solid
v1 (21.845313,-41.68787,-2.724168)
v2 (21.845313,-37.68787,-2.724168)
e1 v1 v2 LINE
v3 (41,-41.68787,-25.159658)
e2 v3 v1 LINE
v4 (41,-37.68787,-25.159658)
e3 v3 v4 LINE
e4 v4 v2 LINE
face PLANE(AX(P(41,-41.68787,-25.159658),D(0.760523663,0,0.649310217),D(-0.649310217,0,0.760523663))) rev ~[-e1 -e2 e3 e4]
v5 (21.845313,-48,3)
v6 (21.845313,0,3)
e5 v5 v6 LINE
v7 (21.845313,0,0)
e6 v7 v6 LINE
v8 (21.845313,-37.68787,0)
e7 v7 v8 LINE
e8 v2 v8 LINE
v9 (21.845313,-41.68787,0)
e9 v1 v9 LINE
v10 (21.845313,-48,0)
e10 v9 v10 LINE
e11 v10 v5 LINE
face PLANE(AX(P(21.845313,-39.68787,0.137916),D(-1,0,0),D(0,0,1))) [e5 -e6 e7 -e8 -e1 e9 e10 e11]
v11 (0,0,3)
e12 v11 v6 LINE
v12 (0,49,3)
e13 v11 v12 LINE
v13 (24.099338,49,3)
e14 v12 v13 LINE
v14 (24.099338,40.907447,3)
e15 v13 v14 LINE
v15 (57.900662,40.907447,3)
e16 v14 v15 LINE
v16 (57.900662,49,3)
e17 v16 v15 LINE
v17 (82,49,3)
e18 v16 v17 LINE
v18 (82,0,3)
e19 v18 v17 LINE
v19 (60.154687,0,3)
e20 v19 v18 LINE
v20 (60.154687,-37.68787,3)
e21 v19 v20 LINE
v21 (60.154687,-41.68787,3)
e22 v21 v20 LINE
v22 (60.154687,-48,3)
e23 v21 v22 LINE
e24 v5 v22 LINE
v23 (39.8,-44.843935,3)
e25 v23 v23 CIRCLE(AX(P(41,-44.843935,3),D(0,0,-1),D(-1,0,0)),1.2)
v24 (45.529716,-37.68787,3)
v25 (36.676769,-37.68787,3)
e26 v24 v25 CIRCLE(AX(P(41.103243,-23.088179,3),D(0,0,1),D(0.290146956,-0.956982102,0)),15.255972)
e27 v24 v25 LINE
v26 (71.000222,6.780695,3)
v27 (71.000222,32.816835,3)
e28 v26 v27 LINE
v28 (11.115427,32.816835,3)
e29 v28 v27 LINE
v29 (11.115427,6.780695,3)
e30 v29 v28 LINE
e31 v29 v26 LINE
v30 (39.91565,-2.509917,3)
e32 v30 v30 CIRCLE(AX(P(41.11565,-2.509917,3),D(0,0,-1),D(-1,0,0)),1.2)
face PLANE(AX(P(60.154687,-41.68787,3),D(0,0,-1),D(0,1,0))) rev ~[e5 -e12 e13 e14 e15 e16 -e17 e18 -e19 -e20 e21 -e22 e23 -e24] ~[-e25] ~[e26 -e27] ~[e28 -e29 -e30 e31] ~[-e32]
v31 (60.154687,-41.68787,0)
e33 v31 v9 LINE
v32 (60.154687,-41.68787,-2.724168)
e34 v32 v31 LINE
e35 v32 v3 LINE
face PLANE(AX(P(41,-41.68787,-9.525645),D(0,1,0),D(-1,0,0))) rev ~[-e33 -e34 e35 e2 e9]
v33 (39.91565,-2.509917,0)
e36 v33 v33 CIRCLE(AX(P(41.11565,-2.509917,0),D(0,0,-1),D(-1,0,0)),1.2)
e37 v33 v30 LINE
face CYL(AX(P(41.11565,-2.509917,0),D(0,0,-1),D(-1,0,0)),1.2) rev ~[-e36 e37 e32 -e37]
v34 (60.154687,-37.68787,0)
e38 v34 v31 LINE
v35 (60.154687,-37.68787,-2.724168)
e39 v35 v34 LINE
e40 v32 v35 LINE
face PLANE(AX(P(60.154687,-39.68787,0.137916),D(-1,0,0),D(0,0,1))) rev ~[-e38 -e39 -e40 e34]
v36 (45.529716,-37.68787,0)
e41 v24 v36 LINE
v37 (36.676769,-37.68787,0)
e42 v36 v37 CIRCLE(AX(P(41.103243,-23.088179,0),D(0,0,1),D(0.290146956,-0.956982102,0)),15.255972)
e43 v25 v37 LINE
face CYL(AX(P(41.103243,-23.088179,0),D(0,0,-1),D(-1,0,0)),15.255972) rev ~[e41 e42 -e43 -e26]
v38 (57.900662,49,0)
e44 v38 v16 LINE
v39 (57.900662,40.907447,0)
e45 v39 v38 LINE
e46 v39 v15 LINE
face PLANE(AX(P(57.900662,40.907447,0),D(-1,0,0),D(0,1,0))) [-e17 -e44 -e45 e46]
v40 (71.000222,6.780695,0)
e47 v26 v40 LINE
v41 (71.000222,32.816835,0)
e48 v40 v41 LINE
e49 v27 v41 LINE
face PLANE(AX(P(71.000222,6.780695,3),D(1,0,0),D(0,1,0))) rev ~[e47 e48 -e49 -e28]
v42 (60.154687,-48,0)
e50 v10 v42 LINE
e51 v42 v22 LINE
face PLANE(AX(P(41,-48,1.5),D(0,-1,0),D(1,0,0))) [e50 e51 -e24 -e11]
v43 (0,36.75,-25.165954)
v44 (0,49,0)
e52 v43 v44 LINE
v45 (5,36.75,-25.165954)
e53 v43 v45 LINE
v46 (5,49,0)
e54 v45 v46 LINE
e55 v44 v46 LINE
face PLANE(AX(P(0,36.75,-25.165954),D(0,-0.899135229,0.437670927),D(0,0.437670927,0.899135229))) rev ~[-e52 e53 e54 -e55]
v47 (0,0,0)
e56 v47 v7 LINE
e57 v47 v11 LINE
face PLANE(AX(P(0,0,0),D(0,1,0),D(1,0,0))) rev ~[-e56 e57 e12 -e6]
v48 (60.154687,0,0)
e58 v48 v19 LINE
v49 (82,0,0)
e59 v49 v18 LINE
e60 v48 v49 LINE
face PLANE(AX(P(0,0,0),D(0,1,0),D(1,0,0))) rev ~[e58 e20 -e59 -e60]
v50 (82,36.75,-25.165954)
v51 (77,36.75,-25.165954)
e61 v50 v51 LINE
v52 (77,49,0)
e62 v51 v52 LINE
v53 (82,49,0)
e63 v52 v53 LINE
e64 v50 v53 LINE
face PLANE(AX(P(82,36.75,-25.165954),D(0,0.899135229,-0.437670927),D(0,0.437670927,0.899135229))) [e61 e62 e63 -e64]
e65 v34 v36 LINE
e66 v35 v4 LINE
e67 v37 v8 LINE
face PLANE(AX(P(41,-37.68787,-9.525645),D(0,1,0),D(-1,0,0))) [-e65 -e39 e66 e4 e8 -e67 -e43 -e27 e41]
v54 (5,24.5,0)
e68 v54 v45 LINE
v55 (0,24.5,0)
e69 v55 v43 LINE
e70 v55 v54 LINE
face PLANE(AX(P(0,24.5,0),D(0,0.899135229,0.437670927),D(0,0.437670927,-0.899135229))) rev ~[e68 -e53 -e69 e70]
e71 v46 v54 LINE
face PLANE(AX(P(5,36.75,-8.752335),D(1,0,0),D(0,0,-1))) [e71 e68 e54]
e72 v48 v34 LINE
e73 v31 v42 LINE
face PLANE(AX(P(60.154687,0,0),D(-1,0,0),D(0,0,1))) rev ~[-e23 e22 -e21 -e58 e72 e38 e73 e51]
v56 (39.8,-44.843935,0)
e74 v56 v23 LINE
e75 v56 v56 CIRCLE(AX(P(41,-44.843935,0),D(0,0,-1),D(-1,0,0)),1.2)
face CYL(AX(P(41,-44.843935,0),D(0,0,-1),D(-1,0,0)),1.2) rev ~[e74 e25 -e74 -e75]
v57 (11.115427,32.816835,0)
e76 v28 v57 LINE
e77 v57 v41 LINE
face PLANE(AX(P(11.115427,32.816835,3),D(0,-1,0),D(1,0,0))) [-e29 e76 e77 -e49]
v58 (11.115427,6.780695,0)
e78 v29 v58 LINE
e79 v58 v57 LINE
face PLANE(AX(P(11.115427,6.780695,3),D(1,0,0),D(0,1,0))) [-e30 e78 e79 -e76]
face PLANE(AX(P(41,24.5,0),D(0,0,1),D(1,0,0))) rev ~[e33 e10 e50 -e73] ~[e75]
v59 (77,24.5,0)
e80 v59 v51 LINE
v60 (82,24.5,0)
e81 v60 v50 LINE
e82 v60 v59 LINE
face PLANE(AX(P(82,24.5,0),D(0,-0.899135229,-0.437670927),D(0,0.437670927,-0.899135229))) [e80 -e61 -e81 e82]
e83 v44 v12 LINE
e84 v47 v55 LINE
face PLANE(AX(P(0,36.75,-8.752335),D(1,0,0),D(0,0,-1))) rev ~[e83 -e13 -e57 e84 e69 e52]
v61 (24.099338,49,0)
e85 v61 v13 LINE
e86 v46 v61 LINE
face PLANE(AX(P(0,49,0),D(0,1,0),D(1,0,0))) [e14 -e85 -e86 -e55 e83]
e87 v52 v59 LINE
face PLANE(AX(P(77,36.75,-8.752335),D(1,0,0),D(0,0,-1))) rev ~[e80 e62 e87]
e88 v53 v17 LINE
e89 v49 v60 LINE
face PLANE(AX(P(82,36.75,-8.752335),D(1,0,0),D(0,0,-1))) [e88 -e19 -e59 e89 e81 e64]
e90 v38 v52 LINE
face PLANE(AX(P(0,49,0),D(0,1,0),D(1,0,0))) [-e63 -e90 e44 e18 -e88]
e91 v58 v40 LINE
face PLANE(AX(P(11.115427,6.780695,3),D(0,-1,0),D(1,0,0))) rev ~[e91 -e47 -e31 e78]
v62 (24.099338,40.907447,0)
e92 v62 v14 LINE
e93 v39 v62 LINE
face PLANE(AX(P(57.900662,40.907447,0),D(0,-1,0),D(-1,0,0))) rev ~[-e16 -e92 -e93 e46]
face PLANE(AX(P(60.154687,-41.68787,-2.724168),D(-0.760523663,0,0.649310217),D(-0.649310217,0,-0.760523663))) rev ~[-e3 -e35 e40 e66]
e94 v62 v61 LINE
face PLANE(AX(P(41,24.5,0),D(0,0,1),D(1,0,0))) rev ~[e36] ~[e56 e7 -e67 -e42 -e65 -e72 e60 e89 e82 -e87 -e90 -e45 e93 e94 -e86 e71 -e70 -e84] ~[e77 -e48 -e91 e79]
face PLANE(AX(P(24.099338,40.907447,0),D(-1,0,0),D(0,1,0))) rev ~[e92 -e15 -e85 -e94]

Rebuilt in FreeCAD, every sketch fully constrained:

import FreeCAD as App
import Part
import Sketcher
from FreeCAD import Vector
Q = App.Units.Quantity


def add_polygon(sketch, points):
    """Adds a closed chain of lines whose ends are joined by coincident constraints."""
    first, n = sketch.GeometryCount, len(points)
    for a, b in zip(points, points[1:] + points[:1]):
        sketch.addGeometry(Part.LineSegment(App.Vector(*a, 0), App.Vector(*b, 0)), False)
    for i in range(n):
        sketch.addConstraint(Sketcher.Constraint("Coincident", first + i, 2, first + (i + 1) % n, 1))

doc = App.newDocument("Part")
body = doc.addObject("PartDesign::Body", "Body")

# Sketch on XY plane
sketch1 = body.newObject("Sketcher::SketchObject", "Sketch")
sketch1.AttachmentSupport = (doc.getObject("XY_Plane"), [""])
sketch1.MapMode = "FlatFace"
add_polygon(sketch1, [(0, 49), (0, 0), (82, 0), (82, 49)])  # lines 0-3
sketch1.addConstraint(Sketcher.Constraint("Vertical", 0))
sketch1.addConstraint(Sketcher.Constraint("Horizontal", 1))
sketch1.addConstraint(Sketcher.Constraint("Vertical", 2))
sketch1.addConstraint(Sketcher.Constraint("Horizontal", 3))
sketch1.addConstraint(Sketcher.Constraint("Coincident", 0, 2, -1, 1))
sketch1.addConstraint(Sketcher.Constraint("DistanceX", 1, 1, 1, 2, Q("82 mm")))
sketch1.addConstraint(Sketcher.Constraint("DistanceY", 0, 2, 0, 1, Q("49 mm")))
pad1 = body.newObject("PartDesign::Pad", "Pad")
pad1.Profile = sketch1
pad1.Length = 3

# Sketch on XZ plane
sketch2 = body.newObject("Sketcher::SketchObject", "Sketch001")
sketch2.AttachmentSupport = (doc.getObject("XZ_Plane"), [""])
sketch2.MapMode = "FlatFace"
add_polygon(sketch2, [(21.8, 3), (21.8, 0), (60.2, 0), (60.2, 3)])  # lines 0-3
sketch2.addConstraint(Sketcher.Constraint("Vertical", 0))
sketch2.addConstraint(Sketcher.Constraint("Horizontal", 1))
sketch2.addConstraint(Sketcher.Constraint("Vertical", 2))
sketch2.addConstraint(Sketcher.Constraint("Horizontal", 3))
sketch2.addConstraint(Sketcher.Constraint("PointOnObject", 0, 2, -1))
sketch2.addConstraint(Sketcher.Constraint("DistanceY", 0, 2, 0, 1, Q("3 mm")))
sketch2.addConstraint(Sketcher.Constraint("DistanceX", 1, 1, 1, 2, Q("38.309374 mm")))
sketch2.addConstraint(Sketcher.Constraint("DistanceX", -1, 1, 0, 2, Q("21.845313 mm")))
pad2 = body.newObject("PartDesign::Pad", "Pad001")
pad2.Profile = sketch2
pad2.Length = 48

# Sketch on XY plane
sketch3 = body.newObject("Sketcher::SketchObject", "Sketch002")
sketch3.AttachmentSupport = (doc.getObject("XY_Plane"), [""])
sketch3.MapMode = "FlatFace"
sketch3.addGeometry(Part.Circle(Vector(41, -23, 0), Vector(0, 0, 1), 15), False)
sketch3.addConstraint(Sketcher.Constraint("Diameter", 0, Q("30.511943 mm")))
sketch3.addConstraint(Sketcher.Constraint("DistanceY", 0, 3, -1, 1, Q("23.088179 mm")))
sketch3.addConstraint(Sketcher.Constraint("DistanceX", -1, 1, 0, 3, Q("41.103243 mm")))
pocket1 = body.newObject("PartDesign::Pocket", "Pocket")
pocket1.Profile = sketch3
pocket1.Type = "ThroughAll"
pocket1.Reversed = True

# Sketch on XY plane
sketch4 = body.newObject("Sketcher::SketchObject", "Sketch003")
sketch4.AttachmentSupport = (doc.getObject("XY_Plane"), [""])
sketch4.MapMode = "FlatFace"
add_polygon(sketch4, [(58, 49), (58, 41), (24, 41), (24, 49)])  # lines 0-3
sketch4.addConstraint(Sketcher.Constraint("Vertical", 0))
sketch4.addConstraint(Sketcher.Constraint("Horizontal", 1))
sketch4.addConstraint(Sketcher.Constraint("Vertical", 2))
sketch4.addConstraint(Sketcher.Constraint("Horizontal", 3))
sketch4.addConstraint(Sketcher.Constraint("DistanceY", -1, 1, 2, 2, Q("49 mm")))
sketch4.addConstraint(Sketcher.Constraint("DistanceX", 1, 2, 1, 1, Q("33.801324 mm")))
sketch4.addConstraint(Sketcher.Constraint("DistanceY", 0, 2, 0, 1, Q("8.092553 mm")))
sketch4.addConstraint(Sketcher.Constraint("DistanceX", -1, 1, 0, 2, Q("57.900662 mm")))
pocket2 = body.newObject("PartDesign::Pocket", "Pocket001")
pocket2.Profile = sketch4
pocket2.Type = "ThroughAll"
pocket2.Reversed = True

# Sketch on YZ plane
sketch5 = body.newObject("Sketcher::SketchObject", "Sketch004")
sketch5.AttachmentSupport = (doc.getObject("YZ_Plane"), [""])
sketch5.MapMode = "FlatFace"
sketch5.AttachmentOffset = App.Placement(Vector(0, 0, 82), App.Rotation())
add_polygon(sketch5, [(49, 0), (24, 0), (37, -25)])  # lines 0-2
sketch5.addConstraint(Sketcher.Constraint("Horizontal", 0))
sketch5.addConstraint(Sketcher.Constraint("PointOnObject", 0, 2, -1))
sketch5.addConstraint(Sketcher.Constraint("Equal", 1, 2))
sketch5.addConstraint(Sketcher.Constraint("DistanceX", 0, 2, 0, 1, Q("24.5 mm")))
sketch5.addConstraint(Sketcher.Constraint("DistanceX", -1, 1, 2, 2, Q("49 mm")))
sketch5.addConstraint(Sketcher.Constraint("Distance", 1, Q("27.989065 mm")))
pad3 = body.newObject("PartDesign::Pad", "Pad002")
pad3.Profile = sketch5
pad3.Length = 5
pad3.Reversed = True

# Sketch on YZ plane
sketch6 = body.newObject("Sketcher::SketchObject", "Sketch005")
sketch6.AttachmentSupport = (doc.getObject("YZ_Plane"), [""])
sketch6.MapMode = "FlatFace"
add_polygon(sketch6, [(24, 0), (49, 0), (37, -25)])  # lines 0-2
sketch6.addConstraint(Sketcher.Constraint("Horizontal", 0))
sketch6.addConstraint(Sketcher.Constraint("PointOnObject", 0, 2, -1))
sketch6.addConstraint(Sketcher.Constraint("Equal", 1, 2))
sketch6.addConstraint(Sketcher.Constraint("DistanceX", 0, 1, 0, 2, Q("24.5 mm")))
sketch6.addConstraint(Sketcher.Constraint("DistanceX", -1, 1, 0, 2, Q("49 mm")))
sketch6.addConstraint(Sketcher.Constraint("Distance", 1, Q("27.989065 mm")))
pad4 = body.newObject("PartDesign::Pad", "Pad003")
pad4.Profile = sketch6
pad4.Length = 5

# Sketch on XY plane
sketch7 = body.newObject("Sketcher::SketchObject", "Sketch006")
sketch7.AttachmentSupport = (doc.getObject("XY_Plane"), [""])
sketch7.MapMode = "FlatFace"
sketch7.addGeometry(Part.Circle(Vector(41.1, -2.5, 0), Vector(0, 0, 1), 1.2), False)
sketch7.addConstraint(Sketcher.Constraint("Diameter", 0, Q("2.4 mm")))
sketch7.addConstraint(Sketcher.Constraint("DistanceX", -1, 1, 0, 3, Q("41.11565 mm")))
sketch7.addConstraint(Sketcher.Constraint("DistanceY", 0, 3, -1, 1, Q("2.509917 mm")))
pocket3 = body.newObject("PartDesign::Pocket", "Pocket002")
pocket3.Profile = sketch7
pocket3.Type = "ThroughAll"
pocket3.Reversed = True

# Sketch on YZ plane
sketch8 = body.newObject("Sketcher::SketchObject", "Sketch007")
sketch8.AttachmentSupport = (doc.getObject("YZ_Plane"), [""])
sketch8.MapMode = "FlatFace"
sketch8.AttachmentOffset = App.Placement(Vector(0, 0, 60.154687), App.Rotation())
add_polygon(sketch8, [(-37.7, -2.7), (-41.7, -2.7), (-41.7, 3), (-37.7, 3)])  # lines 0-3
sketch8.addConstraint(Sketcher.Constraint("Horizontal", 0))
sketch8.addConstraint(Sketcher.Constraint("Vertical", 1))
sketch8.addConstraint(Sketcher.Constraint("Horizontal", 2))
sketch8.addConstraint(Sketcher.Constraint("Vertical", 3))
sketch8.addConstraint(Sketcher.Constraint("DistanceX", 0, 2, 0, 1, Q("4 mm")))
sketch8.addConstraint(Sketcher.Constraint("DistanceY", -1, 1, 1, 2, Q("3 mm")))
sketch8.addConstraint(Sketcher.Constraint("DistanceY", 1, 1, 1, 2, Q("5.724168 mm")))
sketch8.addConstraint(Sketcher.Constraint("DistanceX", 0, 2, -1, 1, Q("41.68787 mm")))
pad5 = body.newObject("PartDesign::Pad", "Pad004")
pad5.Profile = sketch8
pad5.Length = 38.309374
pad5.Reversed = True

# Sketch on XZ plane
sketch9 = body.newObject("Sketcher::SketchObject", "Sketch008")
sketch9.AttachmentSupport = (doc.getObject("XZ_Plane"), [""])
sketch9.MapMode = "FlatFace"
sketch9.AttachmentOffset = App.Placement(Vector(0, 0, 41.68787), App.Rotation())
add_polygon(sketch9, [(60, -3), (22, -3), (41, -25)])  # lines 0-2
sketch9.addConstraint(Sketcher.Constraint("Horizontal", 0))
sketch9.addConstraint(Sketcher.Constraint("Equal", 1, 2))
sketch9.addConstraint(Sketcher.Constraint("DistanceX", -1, 1, 1, 2, Q("41 mm")))
sketch9.addConstraint(Sketcher.Constraint("DistanceX", 0, 2, 0, 1, Q("38.309374 mm")))
sketch9.addConstraint(Sketcher.Constraint("DistanceY", 0, 2, -1, 1, Q("2.724168 mm")))
sketch9.addConstraint(Sketcher.Constraint("DistanceY", 1, 2, -1, 1, Q("25.159658 mm")))
pad6 = body.newObject("PartDesign::Pad", "Pad005")
pad6.Profile = sketch9
pad6.Length = 4
pad6.Reversed = True

# Sketch on XY plane
sketch10 = body.newObject("Sketcher::SketchObject", "Sketch009")
sketch10.AttachmentSupport = (doc.getObject("XY_Plane"), [""])
sketch10.MapMode = "FlatFace"
sketch10.addGeometry(Part.Circle(Vector(41, -44.8, 0), Vector(0, 0, 1), 1.2), False)
sketch10.addConstraint(Sketcher.Constraint("Diameter", 0, Q("2.4 mm")))
sketch10.addConstraint(Sketcher.Constraint("DistanceX", -1, 1, 0, 3, Q("41 mm")))
sketch10.addConstraint(Sketcher.Constraint("DistanceY", 0, 3, -1, 1, Q("44.843935 mm")))
pocket4 = body.newObject("PartDesign::Pocket", "Pocket003")
pocket4.Profile = sketch10
pocket4.Type = "ThroughAll"
pocket4.Reversed = True

# Sketch on XY plane
sketch11 = body.newObject("Sketcher::SketchObject", "Sketch010")
sketch11.AttachmentSupport = (doc.getObject("XY_Plane"), [""])
sketch11.MapMode = "FlatFace"
sketch11.AttachmentOffset = App.Placement(Vector(0, 0, 3), App.Rotation())
add_polygon(sketch11, [(11, 33), (11, 7), (71, 7), (71, 33)])  # lines 0-3
sketch11.addConstraint(Sketcher.Constraint("Vertical", 0))
sketch11.addConstraint(Sketcher.Constraint("Horizontal", 1))
sketch11.addConstraint(Sketcher.Constraint("Vertical", 2))
sketch11.addConstraint(Sketcher.Constraint("Horizontal", 3))
sketch11.addConstraint(Sketcher.Constraint("DistanceY", 0, 2, 0, 1, Q("26.036139 mm")))
sketch11.addConstraint(Sketcher.Constraint("DistanceX", 1, 1, 1, 2, Q("59.884795 mm")))
sketch11.addConstraint(Sketcher.Constraint("DistanceX", -1, 1, 0, 2, Q("11.115427 mm")))
sketch11.addConstraint(Sketcher.Constraint("DistanceY", -1, 1, 0, 2, Q("6.780695 mm")))
pocket5 = body.newObject("PartDesign::Pocket", "Pocket004")
pocket5.Profile = sketch11
pocket5.Type = "ThroughAll"

doc.recompute()
